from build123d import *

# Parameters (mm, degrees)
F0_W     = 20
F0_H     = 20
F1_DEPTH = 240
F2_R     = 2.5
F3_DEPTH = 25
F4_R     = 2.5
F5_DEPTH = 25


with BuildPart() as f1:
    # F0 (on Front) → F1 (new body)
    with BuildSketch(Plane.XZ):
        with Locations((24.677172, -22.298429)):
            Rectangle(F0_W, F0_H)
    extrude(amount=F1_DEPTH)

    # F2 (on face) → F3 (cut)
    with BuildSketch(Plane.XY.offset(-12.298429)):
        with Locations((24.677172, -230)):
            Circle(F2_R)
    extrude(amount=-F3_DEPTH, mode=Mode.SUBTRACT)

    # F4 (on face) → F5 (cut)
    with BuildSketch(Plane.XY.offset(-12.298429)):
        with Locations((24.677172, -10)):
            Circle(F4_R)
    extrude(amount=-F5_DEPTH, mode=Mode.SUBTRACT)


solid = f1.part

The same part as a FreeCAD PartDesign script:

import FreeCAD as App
import Part
import Sketcher

doc = App.newDocument("Part")
body = doc.addObject("PartDesign::Body", "Body")

# Sketch on XZ plane
sketch1 = body.newObject("Sketcher::SketchObject", "Sketch")
sketch1.AttachmentSupport = (doc.getObject("XZ_Plane"), [""])
sketch1.MapMode = "FlatFace"
sketch1.addGeometry([
    Part.LineSegment(App.Vector(15, -12, 0), App.Vector(15, -32, 0)),
    Part.LineSegment(App.Vector(15, -32, 0), App.Vector(35, -32, 0)),
    Part.LineSegment(App.Vector(35, -32, 0), App.Vector(35, -12, 0)),
    Part.LineSegment(App.Vector(35, -12, 0), App.Vector(15, -12, 0)),
], False)
sketch1.addConstraint([
    Sketcher.Constraint("Coincident", 0, 2, 1, 1),
    Sketcher.Constraint("Coincident", 1, 2, 2, 1),
    Sketcher.Constraint("Coincident", 2, 2, 3, 1),
    Sketcher.Constraint("Coincident", 3, 2, 0, 1),
    Sketcher.Constraint("Vertical", 0),
    Sketcher.Constraint("Horizontal", 1),
    Sketcher.Constraint("Vertical", 2),
    Sketcher.Constraint("Horizontal", 3),
    Sketcher.Constraint("Equal", 3, 0),
    Sketcher.Constraint("DistanceX", 1, 1, 1, 2, 20.0),
    Sketcher.Constraint("DistanceY", 0, 2, -1, 1, 32.298429),
    Sketcher.Constraint("DistanceX", -1, 1, 0, 2, 14.677172),
])
pad1 = body.newObject("PartDesign::Pad", "Pad")
pad1.Profile = sketch1
pad1.Length = 240

# Sketch on XY plane
sketch2 = body.newObject("Sketcher::SketchObject", "Sketch001")
sketch2.AttachmentSupport = (doc.getObject("XY_Plane"), [""])
sketch2.MapMode = "FlatFace"
sketch2.AttachmentOffset = App.Placement(App.Vector(0, 0, -12.298429), App.Rotation())
sketch2.addGeometry(Part.Circle(App.Vector(24.7, -230, 0), App.Vector(0, 0, 1), 2.5), False)
sketch2.addConstraint([
    Sketcher.Constraint("Diameter", 0, 5.0),
    Sketcher.Constraint("DistanceY", 0, 3, -1, 1, 230.0),
    Sketcher.Constraint("DistanceX", -1, 1, 0, 3, 24.677172),
])
pocket1 = body.newObject("PartDesign::Pocket", "Pocket")
pocket1.Profile = sketch2
pocket1.Length = 25

# Sketch on XY plane
sketch3 = body.newObject("Sketcher::SketchObject", "Sketch002")
sketch3.AttachmentSupport = (doc.getObject("XY_Plane"), [""])
sketch3.MapMode = "FlatFace"
sketch3.AttachmentOffset = App.Placement(App.Vector(0, 0, -12.298429), App.Rotation())
sketch3.addGeometry(Part.Circle(App.Vector(24.7, -10, 0), App.Vector(0, 0, 1), 2.5), False)
sketch3.addConstraint([
    Sketcher.Constraint("Diameter", 0, 5.0),
    Sketcher.Constraint("DistanceY", 0, 3, -1, 1, 10.0),
    Sketcher.Constraint("DistanceX", -1, 1, 0, 3, 24.677172),
])
pocket2 = body.newObject("PartDesign::Pocket", "Pocket001")
pocket2.Profile = sketch3
pocket2.Length = 25

doc.recompute()
